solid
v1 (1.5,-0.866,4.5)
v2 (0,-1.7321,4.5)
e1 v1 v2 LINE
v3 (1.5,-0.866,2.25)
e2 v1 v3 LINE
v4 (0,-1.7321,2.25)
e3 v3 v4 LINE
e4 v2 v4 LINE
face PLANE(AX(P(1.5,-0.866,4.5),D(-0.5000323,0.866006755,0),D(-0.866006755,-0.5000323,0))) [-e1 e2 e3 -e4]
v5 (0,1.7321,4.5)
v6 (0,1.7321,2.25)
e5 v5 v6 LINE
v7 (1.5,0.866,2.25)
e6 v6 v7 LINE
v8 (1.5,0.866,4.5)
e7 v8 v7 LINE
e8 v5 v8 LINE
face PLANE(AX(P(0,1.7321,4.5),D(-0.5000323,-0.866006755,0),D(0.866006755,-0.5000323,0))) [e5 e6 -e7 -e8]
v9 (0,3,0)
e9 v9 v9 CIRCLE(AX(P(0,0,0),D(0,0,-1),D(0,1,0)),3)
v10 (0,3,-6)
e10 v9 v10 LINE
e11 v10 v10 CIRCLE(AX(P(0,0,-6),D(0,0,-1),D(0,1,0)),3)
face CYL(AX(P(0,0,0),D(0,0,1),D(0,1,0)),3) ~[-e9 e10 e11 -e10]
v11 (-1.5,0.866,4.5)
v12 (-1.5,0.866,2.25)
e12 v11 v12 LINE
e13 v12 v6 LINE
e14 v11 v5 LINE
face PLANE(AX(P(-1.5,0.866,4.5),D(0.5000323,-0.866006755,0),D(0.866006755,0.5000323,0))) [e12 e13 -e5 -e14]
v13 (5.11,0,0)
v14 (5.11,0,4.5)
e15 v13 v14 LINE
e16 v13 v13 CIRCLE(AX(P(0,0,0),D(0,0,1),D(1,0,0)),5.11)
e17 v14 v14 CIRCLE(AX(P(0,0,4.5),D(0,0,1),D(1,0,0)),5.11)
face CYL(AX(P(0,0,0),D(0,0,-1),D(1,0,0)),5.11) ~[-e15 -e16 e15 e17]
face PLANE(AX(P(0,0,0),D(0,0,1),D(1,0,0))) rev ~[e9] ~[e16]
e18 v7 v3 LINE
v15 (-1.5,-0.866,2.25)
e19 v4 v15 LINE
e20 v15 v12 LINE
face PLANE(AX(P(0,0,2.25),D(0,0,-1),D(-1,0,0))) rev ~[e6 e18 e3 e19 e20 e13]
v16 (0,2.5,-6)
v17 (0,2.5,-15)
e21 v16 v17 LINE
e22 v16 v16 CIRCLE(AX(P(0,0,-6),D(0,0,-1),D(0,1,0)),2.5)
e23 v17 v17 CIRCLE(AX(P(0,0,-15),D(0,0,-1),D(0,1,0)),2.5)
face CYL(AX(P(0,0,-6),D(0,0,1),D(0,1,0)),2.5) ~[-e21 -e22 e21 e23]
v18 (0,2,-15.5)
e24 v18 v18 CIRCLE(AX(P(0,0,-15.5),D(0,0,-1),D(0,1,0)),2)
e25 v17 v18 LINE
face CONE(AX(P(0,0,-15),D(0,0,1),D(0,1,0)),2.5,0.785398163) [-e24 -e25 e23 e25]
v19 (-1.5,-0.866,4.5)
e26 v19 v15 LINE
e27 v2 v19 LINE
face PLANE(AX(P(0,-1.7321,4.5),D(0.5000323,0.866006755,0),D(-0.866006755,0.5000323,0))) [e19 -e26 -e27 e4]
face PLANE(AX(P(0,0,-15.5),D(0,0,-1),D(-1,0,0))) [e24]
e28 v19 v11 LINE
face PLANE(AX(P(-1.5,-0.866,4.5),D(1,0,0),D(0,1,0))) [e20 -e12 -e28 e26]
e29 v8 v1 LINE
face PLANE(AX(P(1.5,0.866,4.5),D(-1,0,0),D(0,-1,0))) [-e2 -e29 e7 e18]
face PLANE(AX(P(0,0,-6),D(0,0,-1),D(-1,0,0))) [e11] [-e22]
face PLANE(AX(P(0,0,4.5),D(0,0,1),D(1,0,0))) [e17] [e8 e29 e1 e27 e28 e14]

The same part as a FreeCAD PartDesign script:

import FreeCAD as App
import Part
import Sketcher
from FreeCAD import Vector


def edges_at(feature, points):
    """Names of the edges that pass closest to the given points."""
    edges = feature.Shape.Edges
    near = lambda p: min(range(len(edges)), key=lambda i: edges[i].distToShape(Part.Vertex(*p))[0])
    return sorted({f"Edge{near(p) + 1}" for p in points})

doc = App.newDocument("Part")
body = doc.addObject("PartDesign::Body", "Body")

sketch1 = doc.addObject("Sketcher::SketchObject", "Sketch")
body.addObject(sketch1)
sketch1.AttachmentSupport = (doc.XY_Plane, [""])
sketch1.MapMode = "FlatFace"
sketch1.addGeometry(Part.Circle(Vector(0, 0, 0), Vector(0, 0, 1), 5), False)
sketch1.addConstraint([
    Sketcher.Constraint("Coincident", 0, 3, -1, 1),
    Sketcher.Constraint("Diameter", 0, 10.22),
])
pad1 = doc.addObject("PartDesign::Pad", "Pad")
body.addObject(pad1)
pad1.Profile = sketch1
pad1.Length = 4.5

sketch2 = doc.addObject("Sketcher::SketchObject", "Sketch001")
body.addObject(sketch2)
sketch2.AttachmentSupport = (doc.XY_Plane, [""])
sketch2.MapMode = "FlatFace"
sketch2.AttachmentOffset = App.Placement(Vector(0, 0, 4.5), App.Rotation())
sketch2.addGeometry([
    Part.LineSegment(Vector(-1.5, -0.9, 0), Vector(0, -1.7, 0)),
    Part.LineSegment(Vector(0, -1.7, 0), Vector(1.5, -0.9, 0)),
    Part.LineSegment(Vector(1.5, -0.9, 0), Vector(1.5, 0.9, 0)),
    Part.LineSegment(Vector(1.5, 0.9, 0), Vector(0, 1.7, 0)),
    Part.LineSegment(Vector(0, 1.7, 0), Vector(-1.5, 0.9, 0)),
    Part.LineSegment(Vector(-1.5, 0.9, 0), Vector(-1.5, -0.9, 0)),
], False)
sketch2.addConstraint([
    Sketcher.Constraint("Coincident", 0, 2, 1, 1),
    Sketcher.Constraint("Coincident", 1, 2, 2, 1),
    Sketcher.Constraint("Coincident", 2, 2, 3, 1),
    Sketcher.Constraint("Coincident", 3, 2, 4, 1),
    Sketcher.Constraint("Coincident", 4, 2, 5, 1),
    Sketcher.Constraint("Coincident", 5, 2, 0, 1),
    Sketcher.Constraint("Vertical", 2),
    Sketcher.Constraint("Vertical", 5),
    Sketcher.Constraint("Symmetric", 0, 2, 3, 2, -1, 1),
    Sketcher.Constraint("Symmetric", 1, 2, 4, 2, -1, 1),
    Sketcher.Constraint("PointOnObject", 0, 2, -2),
    Sketcher.Constraint("Parallel", 0, 3),
    Sketcher.Constraint("Horizontal", 2, 2, 4, 2),
    Sketcher.Constraint("DistanceX", 4, 2, 2, 2, 3.0),
    Sketcher.Constraint("DistanceY", 2, 1, 2, 2, 1.732),
    Sketcher.Constraint("Distance", 0, 1.732),
])
pocket1 = doc.addObject("PartDesign::Pocket", "Pocket")
body.addObject(pocket1)
pocket1.Profile = sketch2
pocket1.Length = 2.25

sketch3 = doc.addObject("Sketcher::SketchObject", "Sketch002")
body.addObject(sketch3)
sketch3.AttachmentSupport = (doc.XY_Plane, [""])
sketch3.MapMode = "FlatFace"
sketch3.addGeometry(Part.Circle(Vector(0, 0, 0), Vector(0, 0, 1), 3), False)
sketch3.addConstraint([
    Sketcher.Constraint("Coincident", 0, 3, -1, 1),
    Sketcher.Constraint("Diameter", 0, 6.0),
])
pad2 = doc.addObject("PartDesign::Pad", "Pad001")
body.addObject(pad2)
pad2.Profile = sketch3
pad2.Length = 6
pad2.Reversed = True

sketch4 = doc.addObject("Sketcher::SketchObject", "Sketch003")
body.addObject(sketch4)
sketch4.AttachmentSupport = (doc.XY_Plane, [""])
sketch4.MapMode = "FlatFace"
sketch4.AttachmentOffset = App.Placement(Vector(0, 0, -6), App.Rotation())
sketch4.addGeometry(Part.Circle(Vector(0, 0, 0), Vector(0, 0, 1), 2.5), False)
sketch4.addConstraint([
    Sketcher.Constraint("Coincident", 0, 3, -1, 1),
    Sketcher.Constraint("Diameter", 0, 5.0),
])
pad3 = doc.addObject("PartDesign::Pad", "Pad002")
body.addObject(pad3)
pad3.Profile = sketch4
pad3.Length = 9.5
pad3.Reversed = True
doc.recompute()

chamfer = doc.addObject("PartDesign::Chamfer", "Chamfer")
body.addObject(chamfer)
chamfer.Base = (pad3, edges_at(pad3, [(0, -2.5, -15.5)]))
chamfer.Size = 0.5

doc.recompute()
